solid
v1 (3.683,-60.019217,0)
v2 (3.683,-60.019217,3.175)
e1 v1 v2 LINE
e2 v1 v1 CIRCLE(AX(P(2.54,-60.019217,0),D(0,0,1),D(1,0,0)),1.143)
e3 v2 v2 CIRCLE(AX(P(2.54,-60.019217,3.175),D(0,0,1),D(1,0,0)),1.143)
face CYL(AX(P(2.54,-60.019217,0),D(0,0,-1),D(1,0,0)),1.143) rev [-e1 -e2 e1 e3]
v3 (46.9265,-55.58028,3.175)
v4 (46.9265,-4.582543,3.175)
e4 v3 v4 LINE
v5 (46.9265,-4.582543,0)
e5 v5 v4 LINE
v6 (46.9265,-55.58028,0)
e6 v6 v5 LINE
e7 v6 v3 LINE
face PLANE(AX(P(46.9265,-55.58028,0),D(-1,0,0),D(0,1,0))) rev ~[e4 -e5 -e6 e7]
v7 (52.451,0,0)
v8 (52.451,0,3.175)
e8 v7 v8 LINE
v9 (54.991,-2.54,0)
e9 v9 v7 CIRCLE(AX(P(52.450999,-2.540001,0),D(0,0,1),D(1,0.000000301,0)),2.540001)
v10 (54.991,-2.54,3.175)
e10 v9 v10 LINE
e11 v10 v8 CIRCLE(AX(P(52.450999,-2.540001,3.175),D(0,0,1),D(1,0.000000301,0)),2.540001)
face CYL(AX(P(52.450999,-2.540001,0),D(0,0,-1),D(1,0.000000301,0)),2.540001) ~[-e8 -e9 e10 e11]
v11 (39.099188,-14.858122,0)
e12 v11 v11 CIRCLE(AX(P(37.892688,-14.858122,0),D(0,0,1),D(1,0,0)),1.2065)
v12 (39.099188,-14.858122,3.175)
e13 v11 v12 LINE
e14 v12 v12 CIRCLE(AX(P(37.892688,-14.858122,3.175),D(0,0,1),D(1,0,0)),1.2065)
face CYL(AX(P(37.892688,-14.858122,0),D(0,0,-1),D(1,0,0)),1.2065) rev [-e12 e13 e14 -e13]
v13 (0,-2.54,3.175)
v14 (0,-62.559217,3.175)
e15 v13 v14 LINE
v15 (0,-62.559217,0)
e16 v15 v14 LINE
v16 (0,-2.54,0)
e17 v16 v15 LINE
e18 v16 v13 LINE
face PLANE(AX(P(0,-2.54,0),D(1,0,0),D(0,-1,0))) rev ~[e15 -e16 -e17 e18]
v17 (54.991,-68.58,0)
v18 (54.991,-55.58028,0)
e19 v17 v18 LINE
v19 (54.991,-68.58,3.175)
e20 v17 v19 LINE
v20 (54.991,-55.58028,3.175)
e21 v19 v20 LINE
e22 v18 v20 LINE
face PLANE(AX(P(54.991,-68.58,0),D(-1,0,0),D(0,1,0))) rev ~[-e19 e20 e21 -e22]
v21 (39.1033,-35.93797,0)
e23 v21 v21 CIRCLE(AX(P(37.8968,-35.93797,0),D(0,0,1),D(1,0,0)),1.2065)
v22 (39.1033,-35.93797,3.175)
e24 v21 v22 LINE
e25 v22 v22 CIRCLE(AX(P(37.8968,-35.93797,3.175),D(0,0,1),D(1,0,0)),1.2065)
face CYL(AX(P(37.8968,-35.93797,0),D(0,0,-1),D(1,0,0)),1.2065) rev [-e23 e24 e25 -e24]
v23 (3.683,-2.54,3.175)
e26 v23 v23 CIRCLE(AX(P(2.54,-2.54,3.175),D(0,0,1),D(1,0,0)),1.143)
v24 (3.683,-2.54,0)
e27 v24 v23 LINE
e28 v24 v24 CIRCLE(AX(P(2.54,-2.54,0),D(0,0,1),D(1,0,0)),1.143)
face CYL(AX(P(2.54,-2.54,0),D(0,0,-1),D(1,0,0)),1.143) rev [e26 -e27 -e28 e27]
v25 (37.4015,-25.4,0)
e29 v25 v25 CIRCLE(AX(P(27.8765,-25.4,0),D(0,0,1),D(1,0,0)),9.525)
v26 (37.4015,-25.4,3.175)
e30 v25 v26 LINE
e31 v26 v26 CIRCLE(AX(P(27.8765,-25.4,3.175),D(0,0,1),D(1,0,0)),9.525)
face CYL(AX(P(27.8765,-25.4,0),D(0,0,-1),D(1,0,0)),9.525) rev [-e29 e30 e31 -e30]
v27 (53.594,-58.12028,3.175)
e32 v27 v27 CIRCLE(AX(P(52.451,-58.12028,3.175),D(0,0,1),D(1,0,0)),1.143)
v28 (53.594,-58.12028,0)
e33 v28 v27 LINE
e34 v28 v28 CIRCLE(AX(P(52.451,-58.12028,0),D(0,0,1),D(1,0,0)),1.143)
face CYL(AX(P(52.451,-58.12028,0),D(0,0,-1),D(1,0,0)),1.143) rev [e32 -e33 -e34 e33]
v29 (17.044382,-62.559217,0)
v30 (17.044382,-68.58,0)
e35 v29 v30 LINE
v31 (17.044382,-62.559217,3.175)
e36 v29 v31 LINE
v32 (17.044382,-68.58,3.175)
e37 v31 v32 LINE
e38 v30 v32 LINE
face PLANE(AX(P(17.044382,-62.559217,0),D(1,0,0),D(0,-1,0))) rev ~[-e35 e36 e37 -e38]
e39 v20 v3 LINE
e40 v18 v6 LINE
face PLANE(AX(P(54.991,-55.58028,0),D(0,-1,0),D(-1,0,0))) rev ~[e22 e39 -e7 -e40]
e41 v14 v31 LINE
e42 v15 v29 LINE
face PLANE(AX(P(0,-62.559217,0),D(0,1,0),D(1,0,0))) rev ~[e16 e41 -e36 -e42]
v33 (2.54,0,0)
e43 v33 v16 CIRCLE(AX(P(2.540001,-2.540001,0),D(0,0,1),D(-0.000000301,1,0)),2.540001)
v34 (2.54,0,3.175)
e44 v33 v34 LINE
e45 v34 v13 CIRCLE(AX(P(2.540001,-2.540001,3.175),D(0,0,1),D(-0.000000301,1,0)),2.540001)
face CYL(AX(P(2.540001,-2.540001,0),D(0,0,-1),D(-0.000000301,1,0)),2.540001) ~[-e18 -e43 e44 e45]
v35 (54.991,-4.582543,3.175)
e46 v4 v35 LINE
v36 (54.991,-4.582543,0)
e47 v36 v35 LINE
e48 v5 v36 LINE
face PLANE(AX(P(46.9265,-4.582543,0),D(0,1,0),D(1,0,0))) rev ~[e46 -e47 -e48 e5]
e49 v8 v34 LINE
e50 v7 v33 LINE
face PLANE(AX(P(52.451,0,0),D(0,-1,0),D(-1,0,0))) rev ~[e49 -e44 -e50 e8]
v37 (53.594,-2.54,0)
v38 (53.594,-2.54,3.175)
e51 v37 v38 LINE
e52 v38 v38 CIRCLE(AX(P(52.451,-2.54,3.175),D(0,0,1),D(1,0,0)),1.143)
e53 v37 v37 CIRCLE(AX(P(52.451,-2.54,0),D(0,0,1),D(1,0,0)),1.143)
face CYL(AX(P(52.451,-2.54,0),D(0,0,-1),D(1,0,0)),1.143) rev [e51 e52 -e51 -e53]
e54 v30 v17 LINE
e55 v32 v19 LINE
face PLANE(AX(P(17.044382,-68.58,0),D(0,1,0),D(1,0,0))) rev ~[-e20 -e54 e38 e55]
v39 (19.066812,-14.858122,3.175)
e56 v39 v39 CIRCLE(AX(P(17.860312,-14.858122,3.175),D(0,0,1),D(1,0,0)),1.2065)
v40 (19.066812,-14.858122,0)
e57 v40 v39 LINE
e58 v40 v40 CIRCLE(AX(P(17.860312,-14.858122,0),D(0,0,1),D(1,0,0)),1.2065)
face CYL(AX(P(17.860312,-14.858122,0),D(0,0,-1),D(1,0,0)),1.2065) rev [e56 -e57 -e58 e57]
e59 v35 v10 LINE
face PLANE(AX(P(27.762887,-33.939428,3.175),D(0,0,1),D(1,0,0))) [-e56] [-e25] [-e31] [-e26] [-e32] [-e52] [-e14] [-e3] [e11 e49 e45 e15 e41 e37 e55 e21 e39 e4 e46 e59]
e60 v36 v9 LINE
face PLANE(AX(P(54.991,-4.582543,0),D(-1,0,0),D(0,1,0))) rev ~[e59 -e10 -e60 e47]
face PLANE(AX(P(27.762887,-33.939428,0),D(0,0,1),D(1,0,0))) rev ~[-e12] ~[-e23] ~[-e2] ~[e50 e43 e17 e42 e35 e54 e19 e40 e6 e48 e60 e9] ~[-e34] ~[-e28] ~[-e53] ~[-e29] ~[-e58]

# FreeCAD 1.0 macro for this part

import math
import FreeCAD as App
import Part
import Sketcher
from FreeCAD import Vector
Q = App.Units.Quantity

doc = App.newDocument("Part")
body = doc.addObject("PartDesign::Body", "Body")

sketch1 = doc.addObject("Sketcher::SketchObject", "Sketch")
body.addObject(sketch1)
sketch1.AttachmentSupport = (doc.XY_Plane, [""])
sketch1.MapMode = "FlatFace"
sketch1.addGeometry(Part.LineSegment(Vector(52.451, 0, 0), Vector(2.54, 0, 0)), False)
sketch1.addGeometry(Part.ArcOfCircle(Part.Circle(Vector(2.540001, -2.540001, 0), Vector(0, 0, 1), 2.540001), math.radians(90.000017), math.radians(179.999983)), False)
sketch1.addGeometry(Part.LineSegment(Vector(0, -2.54, 0), Vector(0, -62.559217, 0)), False)
sketch1.addGeometry(Part.LineSegment(Vector(0, -62.559217, 0), Vector(17.044382, -62.559217, 0)), False)
sketch1.addGeometry(Part.LineSegment(Vector(17.044382, -62.559217, 0), Vector(17.044382, -68.58, 0)), False)
sketch1.addGeometry(Part.LineSegment(Vector(17.044382, -68.58, 0), Vector(54.991, -68.58, 0)), False)
sketch1.addGeometry(Part.LineSegment(Vector(54.991, -68.58, 0), Vector(54.991, -55.58028, 0)), False)
sketch1.addGeometry(Part.LineSegment(Vector(54.991, -55.58028, 0), Vector(46.9265, -55.58028, 0)), False)
sketch1.addGeometry(Part.LineSegment(Vector(46.9265, -55.58028, 0), Vector(46.9265, -4.582543, 0)), False)
sketch1.addGeometry(Part.LineSegment(Vector(46.9265, -4.582543, 0), Vector(54.991, -4.582543, 0)), False)
sketch1.addGeometry(Part.LineSegment(Vector(54.991, -4.582543, 0), Vector(54.991, -2.54, 0)), False)
sketch1.addGeometry(Part.ArcOfCircle(Part.Circle(Vector(52.450999, -2.540001, 0), Vector(0, 0, 1), 2.540001), math.radians(0.000017), math.radians(89.999983)), False)
sketch1.addGeometry(Part.Circle(Vector(2.54, -60.019217, 0), Vector(0, 0, 1), 1.143), False)
sketch1.addGeometry(Part.Circle(Vector(52.451, -58.12028, 0), Vector(0, 0, 1), 1.143), False)
sketch1.addGeometry(Part.Circle(Vector(37.8968, -35.93797, 0), Vector(0, 0, 1), 1.2065), False)
sketch1.addGeometry(Part.Circle(Vector(2.54, -2.54, 0), Vector(0, 0, 1), 1.143), False)
sketch1.addGeometry(Part.Circle(Vector(17.860312, -14.858122, 0), Vector(0, 0, 1), 1.2065), False)
sketch1.addGeometry(Part.Circle(Vector(27.8765, -25.4, 0), Vector(0, 0, 1), 9.525), False)
sketch1.addGeometry(Part.Circle(Vector(37.892688, -14.858122, 0), Vector(0, 0, 1), 1.2065), False)
sketch1.addGeometry(Part.Circle(Vector(52.451, -2.54, 0), Vector(0, 0, 1), 1.143), False)
sketch1.addConstraint(Sketcher.Constraint("Tangent", 0, 2, 1, 1))
sketch1.addConstraint(Sketcher.Constraint("Tangent", 1, 2, 2, 1))
sketch1.addConstraint(Sketcher.Constraint("Coincident", 2, 2, 3, 1))
sketch1.addConstraint(Sketcher.Constraint("Coincident", 3, 2, 4, 1))
sketch1.addConstraint(Sketcher.Constraint("Coincident", 4, 2, 5, 1))
sketch1.addConstraint(Sketcher.Constraint("Coincident", 5, 2, 6, 1))
sketch1.addConstraint(Sketcher.Constraint("Coincident", 6, 2, 7, 1))
sketch1.addConstraint(Sketcher.Constraint("Coincident", 7, 2, 8, 1))
sketch1.addConstraint(Sketcher.Constraint("Coincident", 8, 2, 9, 1))
sketch1.addConstraint(Sketcher.Constraint("Coincident", 9, 2, 10, 1))
sketch1.addConstraint(Sketcher.Constraint("Tangent", 10, 2, 11, 1))
sketch1.addConstraint(Sketcher.Constraint("Tangent", 11, 2, 0, 1))
sketch1.addConstraint(Sketcher.Constraint("Horizontal", 0))
sketch1.addConstraint(Sketcher.Constraint("Vertical", 2))
sketch1.addConstraint(Sketcher.Constraint("Horizontal", 3))
sketch1.addConstraint(Sketcher.Constraint("Vertical", 4))
sketch1.addConstraint(Sketcher.Constraint("Horizontal", 5))
sketch1.addConstraint(Sketcher.Constraint("Vertical", 6))
sketch1.addConstraint(Sketcher.Constraint("Horizontal", 7))
sketch1.addConstraint(Sketcher.Constraint("Vertical", 8))
sketch1.addConstraint(Sketcher.Constraint("Horizontal", 9))
sketch1.addConstraint(Sketcher.Constraint("Vertical", 10))
sketch1.addConstraint(Sketcher.Constraint("Coincident", 15, 3, 1, 3))
sketch1.addConstraint(Sketcher.Constraint("Coincident", 19, 3, 11, 3))
sketch1.addConstraint(Sketcher.Constraint("Equal", 1, 11))
sketch1.addConstraint(Sketcher.Constraint("Equal", 12, 13))
sketch1.addConstraint(Sketcher.Constraint("Equal", 13, 15))
sketch1.addConstraint(Sketcher.Constraint("Equal", 14, 16))
sketch1.addConstraint(Sketcher.Constraint("Equal", 16, 18))
sketch1.addConstraint(Sketcher.Constraint("Equal", 15, 19))
sketch1.addConstraint(Sketcher.Constraint("PointOnObject", 0, 2, -1))
sketch1.addConstraint(Sketcher.Constraint("PointOnObject", 1, 2, -2))
sketch1.addConstraint(Sketcher.Constraint("Horizontal", 16, 3, 18, 3))
sketch1.addConstraint(Sketcher.Constraint("Vertical", 1, 3, 12, 3))
sketch1.addConstraint(Sketcher.Constraint("Vertical", 11, 3, 13, 3))
sketch1.addConstraint(Sketcher.Constraint("Vertical", 6, 2, 9, 2))
sketch1.addConstraint(Sketcher.Constraint("Radius", 1, Q("0.1 in")))
sketch1.addConstraint(Sketcher.Constraint("Diameter", 12, Q("0.09 in")))
sketch1.addConstraint(Sketcher.Constraint("Diameter", 17, Q("0.75 in")))
sketch1.addConstraint(Sketcher.Constraint("Diameter", 14, Q("0.095 in")))
sketch1.addConstraint(Sketcher.Constraint("DistanceY", 17, 3, -1, 1, Q("1 in")))
sketch1.addConstraint(Sketcher.Constraint("DistanceY", 4, 2, -1, 1, Q("2.7 in")))
sketch1.addConstraint(Sketcher.Constraint("DistanceY", 2, 2, 12, 3, Q("0.1 in")))
sketch1.addConstraint(Sketcher.Constraint("DistanceY", 13, 3, 6, 2, Q("0.1 in")))
sketch1.addConstraint(Sketcher.Constraint("DistanceX", 0, 2, 0, 1, Q("1.965 in")))
sketch1.addConstraint(Sketcher.Constraint("DistanceX", 17, 3, 8, 2, Q("0.75 in")))
sketch1.addConstraint(Sketcher.Constraint("DistanceX", 7, 2, 7, 1, Q("0.3175 in")))
sketch1.addConstraint(Sketcher.Constraint("DistanceY", 6, 1, 6, 2, Q("0.5118 in")))
sketch1.addConstraint(Sketcher.Constraint("DistanceX", -1, 1, 14, 3, Q("1.492 in")))
sketch1.addConstraint(Sketcher.Constraint("DistanceX", 3, 1, 3, 2, Q("17.044382 mm")))
sketch1.addConstraint(Sketcher.Constraint("DistanceY", 2, 2, 2, 1, Q("60.019217 mm")))
sketch1.addConstraint(Sketcher.Constraint("DistanceY", 8, 1, 8, 2, Q("50.997737 mm")))
sketch1.addConstraint(Sketcher.Constraint("DistanceY", 14, 3, -1, 1, Q("35.93797 mm")))
sketch1.addConstraint(Sketcher.Constraint("DistanceX", 1, 3, 16, 3, Q("15.320311 mm")))
sketch1.addConstraint(Sketcher.Constraint("DistanceY", 16, 3, 1, 3, Q("12.318121 mm")))
sketch1.addConstraint(Sketcher.Constraint("DistanceX", 18, 3, 11, 3, Q("14.558311 mm")))
pad1 = doc.addObject("PartDesign::Pad", "Pad")
body.addObject(pad1)
pad1.Profile = sketch1
pad1.Length = Q("0.125 in")

doc.recompute()
